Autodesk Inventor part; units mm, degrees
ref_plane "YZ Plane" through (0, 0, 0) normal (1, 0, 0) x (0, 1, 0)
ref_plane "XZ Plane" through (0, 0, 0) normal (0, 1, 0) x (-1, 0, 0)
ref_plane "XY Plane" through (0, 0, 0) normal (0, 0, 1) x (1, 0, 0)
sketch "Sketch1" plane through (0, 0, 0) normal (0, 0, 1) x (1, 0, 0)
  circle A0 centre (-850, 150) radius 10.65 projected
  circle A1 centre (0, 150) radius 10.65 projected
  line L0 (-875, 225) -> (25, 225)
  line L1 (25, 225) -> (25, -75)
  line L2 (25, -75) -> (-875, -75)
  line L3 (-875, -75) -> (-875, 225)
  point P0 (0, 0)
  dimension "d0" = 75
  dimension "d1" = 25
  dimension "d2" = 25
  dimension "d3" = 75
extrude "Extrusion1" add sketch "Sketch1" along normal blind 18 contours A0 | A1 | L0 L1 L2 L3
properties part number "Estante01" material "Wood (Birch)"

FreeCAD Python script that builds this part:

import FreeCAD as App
import Part
import Sketcher
from FreeCAD import Vector
Q = App.Units.Quantity

doc = App.newDocument("Part")
body = doc.addObject("PartDesign::Body", "Body")

# Sketch on XY plane
sketch1 = doc.addObject("Sketcher::SketchObject", "Sketch")
body.addObject(sketch1)
sketch1.AttachmentSupport = (doc.XY_Plane, [""])
sketch1.MapMode = "FlatFace"
sketch1.addGeometry(Part.LineSegment(Vector(25, 225, 0), Vector(-875, 225, 0)), False)
sketch1.addGeometry(Part.LineSegment(Vector(-875, 225, 0), Vector(-875, -75, 0)), False)
sketch1.addGeometry(Part.LineSegment(Vector(-875, -75, 0), Vector(25, -75, 0)), False)
sketch1.addGeometry(Part.LineSegment(Vector(25, -75, 0), Vector(25, 225, 0)), False)
sketch1.addConstraint(Sketcher.Constraint("Coincident", 0, 2, 1, 1))
sketch1.addConstraint(Sketcher.Constraint("Coincident", 1, 2, 2, 1))
sketch1.addConstraint(Sketcher.Constraint("Coincident", 2, 2, 3, 1))
sketch1.addConstraint(Sketcher.Constraint("Coincident", 3, 2, 0, 1))
sketch1.addConstraint(Sketcher.Constraint("Horizontal", 0))
sketch1.addConstraint(Sketcher.Constraint("Vertical", 1))
sketch1.addConstraint(Sketcher.Constraint("Horizontal", 2))
sketch1.addConstraint(Sketcher.Constraint("Vertical", 3))
sketch1.addConstraint(Sketcher.Constraint("DistanceY", 1, 2, -1, 1, Q("75 mm")))
sketch1.addConstraint(Sketcher.Constraint("DistanceX", -1, 1, 2, 2, Q("25 mm")))
sketch1.addConstraint(Sketcher.Constraint("DistanceX", 0, 2, 0, 1, Q("900 mm")))
sketch1.addConstraint(Sketcher.Constraint("DistanceY", 1, 2, 1, 1, Q("300 mm")))
pad1 = doc.addObject("PartDesign::Pad", "Pad")
body.addObject(pad1)
pad1.Profile = sketch1
pad1.Length = 18

doc.recompute()
